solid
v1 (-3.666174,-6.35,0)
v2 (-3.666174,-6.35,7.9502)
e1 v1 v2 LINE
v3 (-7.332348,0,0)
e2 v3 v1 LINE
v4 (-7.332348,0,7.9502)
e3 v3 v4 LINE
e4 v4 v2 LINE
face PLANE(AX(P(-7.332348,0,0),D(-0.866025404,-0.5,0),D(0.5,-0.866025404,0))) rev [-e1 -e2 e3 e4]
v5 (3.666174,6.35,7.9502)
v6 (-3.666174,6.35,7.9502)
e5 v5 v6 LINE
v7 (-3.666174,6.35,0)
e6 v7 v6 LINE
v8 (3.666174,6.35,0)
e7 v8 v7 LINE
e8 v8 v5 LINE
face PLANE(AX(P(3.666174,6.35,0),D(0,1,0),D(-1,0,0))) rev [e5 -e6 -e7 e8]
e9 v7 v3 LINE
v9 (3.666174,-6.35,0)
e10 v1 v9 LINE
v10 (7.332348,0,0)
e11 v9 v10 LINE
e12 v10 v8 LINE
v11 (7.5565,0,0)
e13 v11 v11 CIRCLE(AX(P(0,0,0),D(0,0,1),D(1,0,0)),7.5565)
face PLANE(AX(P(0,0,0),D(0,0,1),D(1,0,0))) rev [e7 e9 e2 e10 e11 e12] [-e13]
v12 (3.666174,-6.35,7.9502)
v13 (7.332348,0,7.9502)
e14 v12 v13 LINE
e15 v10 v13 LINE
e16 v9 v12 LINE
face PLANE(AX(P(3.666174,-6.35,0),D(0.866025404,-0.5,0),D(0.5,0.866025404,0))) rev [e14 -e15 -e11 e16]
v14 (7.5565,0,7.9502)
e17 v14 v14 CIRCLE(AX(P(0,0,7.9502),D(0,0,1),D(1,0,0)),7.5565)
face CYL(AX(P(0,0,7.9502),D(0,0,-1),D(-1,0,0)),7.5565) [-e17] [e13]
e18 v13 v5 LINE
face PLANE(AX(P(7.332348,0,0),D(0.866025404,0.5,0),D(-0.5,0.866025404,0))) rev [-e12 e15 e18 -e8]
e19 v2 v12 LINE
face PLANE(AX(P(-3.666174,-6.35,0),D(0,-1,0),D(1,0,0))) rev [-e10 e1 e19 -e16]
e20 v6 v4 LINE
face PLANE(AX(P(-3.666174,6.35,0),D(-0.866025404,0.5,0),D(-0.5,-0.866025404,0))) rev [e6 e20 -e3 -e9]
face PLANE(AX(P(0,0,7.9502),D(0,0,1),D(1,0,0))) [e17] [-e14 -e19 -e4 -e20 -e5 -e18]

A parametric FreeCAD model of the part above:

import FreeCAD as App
import Part
import Sketcher

V = App.Vector
Q = App.Units.Quantity


def add_polygon(sketch, points):
    """Adds a closed chain of lines whose ends are joined by coincident constraints."""
    first, n = sketch.GeometryCount, len(points)
    for a, b in zip(points, points[1:] + points[:1]):
        sketch.addGeometry(Part.LineSegment(App.Vector(*a, 0), App.Vector(*b, 0)), False)
    for i in range(n):
        sketch.addConstraint(Sketcher.Constraint("Coincident", first + i, 2, first + (i + 1) % n, 1))

doc = App.newDocument("Part")
params = doc.addObject("Spreadsheet::Sheet", "Params")
for row, (alias, value) in enumerate([
    ("sketch1_diameter", "0.595 in"),
    ("pad1_length", "0.313 in"),
], start=1):
    params.set(f"A{row}", alias)
    params.set(f"B{row}", "=" + value)
    params.setAlias(f"B{row}", alias)

body = doc.addObject("PartDesign::Body", "Body")

sketch1 = body.newObject("Sketcher::SketchObject", "Sketch")
sketch1.AttachmentSupport = (doc.getObject("XY_Plane"), [""])
sketch1.MapMode = "FlatFace"
sketch1.addGeometry(Part.Circle(V(0, 0, 0), V(0, 0, 1), 8), False)
sketch1.addConstraint([
    Sketcher.Constraint("Coincident", 0, 3, -1, 1),
    Sketcher.Constraint("Diameter", 0, Q("0.595 in")),
])
sketch1.setExpression("Constraints[1]", "Params.sketch1_diameter")
pad1 = body.newObject("PartDesign::Pad", "Pad")
pad1.Profile = sketch1
pad1.setExpression("Length", "Params.pad1_length")

sketch2 = body.newObject("Sketcher::SketchObject", "Sketch001")
sketch2.AttachmentSupport = (doc.getObject("XY_Plane"), [""])
sketch2.MapMode = "FlatFace"
sketch2.AttachmentOffset = App.Placement(V(0, 0, 0.313 * 25.4), App.Rotation())
add_polygon(sketch2, [(7, 0), (4, 6), (-4, 6), (-7, 0), (-4, -6), (4, -6)])
sketch2.addConstraint([
    Sketcher.Constraint("Horizontal", 1),
    Sketcher.Constraint("Horizontal", 4),
    Sketcher.Constraint("Symmetric", 0, 2, 3, 2, -1, 1),
    Sketcher.Constraint("Symmetric", 2, 2, 5, 2, -1, 1),
    Sketcher.Constraint("PointOnObject", 2, 2, -1),
    Sketcher.Constraint("Parallel", 2, 5),
    Sketcher.Constraint("Vertical", 1, 2, 3, 2),
    Sketcher.Constraint("Angle", 0, Q("120 deg")),
    Sketcher.Constraint("DistanceY", 3, 2, 1, 2, Q("0.5 in")),
    Sketcher.Constraint("DistanceX", 1, 2, 1, 1, 7.332348),
])
pocket1 = body.newObject("PartDesign::Pocket", "Pocket")
pocket1.Profile = sketch2
pocket1.Type = "ThroughAll"

doc.recompute()
